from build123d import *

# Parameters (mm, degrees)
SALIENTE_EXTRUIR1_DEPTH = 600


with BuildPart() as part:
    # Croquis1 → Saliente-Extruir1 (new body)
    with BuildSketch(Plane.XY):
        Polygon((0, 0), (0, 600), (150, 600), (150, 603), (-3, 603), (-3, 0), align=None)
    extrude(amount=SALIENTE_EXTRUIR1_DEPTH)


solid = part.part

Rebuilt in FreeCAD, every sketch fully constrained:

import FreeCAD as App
import Part
import Sketcher
from FreeCAD import Vector


def add_polygon(sketch, points):
    """Adds a closed chain of lines whose ends are joined by coincident constraints."""
    first, n = sketch.GeometryCount, len(points)
    for a, b in zip(points, points[1:] + points[:1]):
        sketch.addGeometry(Part.LineSegment(App.Vector(*a, 0), App.Vector(*b, 0)), False)
    for i in range(n):
        sketch.addConstraint(Sketcher.Constraint("Coincident", first + i, 2, first + (i + 1) % n, 1))

doc = App.newDocument("Part")
body = doc.addObject("PartDesign::Body", "Body")

sketch1 = body.newObject("Sketcher::SketchObject", "Sketch")
sketch1.AttachmentSupport = (doc.getObject("XY_Plane"), [""])
sketch1.MapMode = "FlatFace"
add_polygon(sketch1, [(0, 0), (0, 600), (150, 600), (150, 603), (-3, 603), (-3, 0)])
sketch1.addConstraint([
    Sketcher.Constraint("Vertical", 0),
    Sketcher.Constraint("Horizontal", 1),
    Sketcher.Constraint("Vertical", 2),
    Sketcher.Constraint("Horizontal", 3),
    Sketcher.Constraint("Vertical", 4),
    Sketcher.Constraint("Horizontal", 5),
    Sketcher.Constraint("Coincident", 5, 2, -1, 1),
    Sketcher.Constraint("Equal", 5, 2),
    Sketcher.Constraint("DistanceX", 1, 1, 1, 2, 150.0),
    Sketcher.Constraint("DistanceX", 3, 2, 3, 1, 153.0),
    Sketcher.Constraint("DistanceY", 0, 1, 0, 2, 600.0),
])
pad1 = body.newObject("PartDesign::Pad", "Pad")
pad1.Profile = sketch1
pad1.Length = 600

doc.recompute()
